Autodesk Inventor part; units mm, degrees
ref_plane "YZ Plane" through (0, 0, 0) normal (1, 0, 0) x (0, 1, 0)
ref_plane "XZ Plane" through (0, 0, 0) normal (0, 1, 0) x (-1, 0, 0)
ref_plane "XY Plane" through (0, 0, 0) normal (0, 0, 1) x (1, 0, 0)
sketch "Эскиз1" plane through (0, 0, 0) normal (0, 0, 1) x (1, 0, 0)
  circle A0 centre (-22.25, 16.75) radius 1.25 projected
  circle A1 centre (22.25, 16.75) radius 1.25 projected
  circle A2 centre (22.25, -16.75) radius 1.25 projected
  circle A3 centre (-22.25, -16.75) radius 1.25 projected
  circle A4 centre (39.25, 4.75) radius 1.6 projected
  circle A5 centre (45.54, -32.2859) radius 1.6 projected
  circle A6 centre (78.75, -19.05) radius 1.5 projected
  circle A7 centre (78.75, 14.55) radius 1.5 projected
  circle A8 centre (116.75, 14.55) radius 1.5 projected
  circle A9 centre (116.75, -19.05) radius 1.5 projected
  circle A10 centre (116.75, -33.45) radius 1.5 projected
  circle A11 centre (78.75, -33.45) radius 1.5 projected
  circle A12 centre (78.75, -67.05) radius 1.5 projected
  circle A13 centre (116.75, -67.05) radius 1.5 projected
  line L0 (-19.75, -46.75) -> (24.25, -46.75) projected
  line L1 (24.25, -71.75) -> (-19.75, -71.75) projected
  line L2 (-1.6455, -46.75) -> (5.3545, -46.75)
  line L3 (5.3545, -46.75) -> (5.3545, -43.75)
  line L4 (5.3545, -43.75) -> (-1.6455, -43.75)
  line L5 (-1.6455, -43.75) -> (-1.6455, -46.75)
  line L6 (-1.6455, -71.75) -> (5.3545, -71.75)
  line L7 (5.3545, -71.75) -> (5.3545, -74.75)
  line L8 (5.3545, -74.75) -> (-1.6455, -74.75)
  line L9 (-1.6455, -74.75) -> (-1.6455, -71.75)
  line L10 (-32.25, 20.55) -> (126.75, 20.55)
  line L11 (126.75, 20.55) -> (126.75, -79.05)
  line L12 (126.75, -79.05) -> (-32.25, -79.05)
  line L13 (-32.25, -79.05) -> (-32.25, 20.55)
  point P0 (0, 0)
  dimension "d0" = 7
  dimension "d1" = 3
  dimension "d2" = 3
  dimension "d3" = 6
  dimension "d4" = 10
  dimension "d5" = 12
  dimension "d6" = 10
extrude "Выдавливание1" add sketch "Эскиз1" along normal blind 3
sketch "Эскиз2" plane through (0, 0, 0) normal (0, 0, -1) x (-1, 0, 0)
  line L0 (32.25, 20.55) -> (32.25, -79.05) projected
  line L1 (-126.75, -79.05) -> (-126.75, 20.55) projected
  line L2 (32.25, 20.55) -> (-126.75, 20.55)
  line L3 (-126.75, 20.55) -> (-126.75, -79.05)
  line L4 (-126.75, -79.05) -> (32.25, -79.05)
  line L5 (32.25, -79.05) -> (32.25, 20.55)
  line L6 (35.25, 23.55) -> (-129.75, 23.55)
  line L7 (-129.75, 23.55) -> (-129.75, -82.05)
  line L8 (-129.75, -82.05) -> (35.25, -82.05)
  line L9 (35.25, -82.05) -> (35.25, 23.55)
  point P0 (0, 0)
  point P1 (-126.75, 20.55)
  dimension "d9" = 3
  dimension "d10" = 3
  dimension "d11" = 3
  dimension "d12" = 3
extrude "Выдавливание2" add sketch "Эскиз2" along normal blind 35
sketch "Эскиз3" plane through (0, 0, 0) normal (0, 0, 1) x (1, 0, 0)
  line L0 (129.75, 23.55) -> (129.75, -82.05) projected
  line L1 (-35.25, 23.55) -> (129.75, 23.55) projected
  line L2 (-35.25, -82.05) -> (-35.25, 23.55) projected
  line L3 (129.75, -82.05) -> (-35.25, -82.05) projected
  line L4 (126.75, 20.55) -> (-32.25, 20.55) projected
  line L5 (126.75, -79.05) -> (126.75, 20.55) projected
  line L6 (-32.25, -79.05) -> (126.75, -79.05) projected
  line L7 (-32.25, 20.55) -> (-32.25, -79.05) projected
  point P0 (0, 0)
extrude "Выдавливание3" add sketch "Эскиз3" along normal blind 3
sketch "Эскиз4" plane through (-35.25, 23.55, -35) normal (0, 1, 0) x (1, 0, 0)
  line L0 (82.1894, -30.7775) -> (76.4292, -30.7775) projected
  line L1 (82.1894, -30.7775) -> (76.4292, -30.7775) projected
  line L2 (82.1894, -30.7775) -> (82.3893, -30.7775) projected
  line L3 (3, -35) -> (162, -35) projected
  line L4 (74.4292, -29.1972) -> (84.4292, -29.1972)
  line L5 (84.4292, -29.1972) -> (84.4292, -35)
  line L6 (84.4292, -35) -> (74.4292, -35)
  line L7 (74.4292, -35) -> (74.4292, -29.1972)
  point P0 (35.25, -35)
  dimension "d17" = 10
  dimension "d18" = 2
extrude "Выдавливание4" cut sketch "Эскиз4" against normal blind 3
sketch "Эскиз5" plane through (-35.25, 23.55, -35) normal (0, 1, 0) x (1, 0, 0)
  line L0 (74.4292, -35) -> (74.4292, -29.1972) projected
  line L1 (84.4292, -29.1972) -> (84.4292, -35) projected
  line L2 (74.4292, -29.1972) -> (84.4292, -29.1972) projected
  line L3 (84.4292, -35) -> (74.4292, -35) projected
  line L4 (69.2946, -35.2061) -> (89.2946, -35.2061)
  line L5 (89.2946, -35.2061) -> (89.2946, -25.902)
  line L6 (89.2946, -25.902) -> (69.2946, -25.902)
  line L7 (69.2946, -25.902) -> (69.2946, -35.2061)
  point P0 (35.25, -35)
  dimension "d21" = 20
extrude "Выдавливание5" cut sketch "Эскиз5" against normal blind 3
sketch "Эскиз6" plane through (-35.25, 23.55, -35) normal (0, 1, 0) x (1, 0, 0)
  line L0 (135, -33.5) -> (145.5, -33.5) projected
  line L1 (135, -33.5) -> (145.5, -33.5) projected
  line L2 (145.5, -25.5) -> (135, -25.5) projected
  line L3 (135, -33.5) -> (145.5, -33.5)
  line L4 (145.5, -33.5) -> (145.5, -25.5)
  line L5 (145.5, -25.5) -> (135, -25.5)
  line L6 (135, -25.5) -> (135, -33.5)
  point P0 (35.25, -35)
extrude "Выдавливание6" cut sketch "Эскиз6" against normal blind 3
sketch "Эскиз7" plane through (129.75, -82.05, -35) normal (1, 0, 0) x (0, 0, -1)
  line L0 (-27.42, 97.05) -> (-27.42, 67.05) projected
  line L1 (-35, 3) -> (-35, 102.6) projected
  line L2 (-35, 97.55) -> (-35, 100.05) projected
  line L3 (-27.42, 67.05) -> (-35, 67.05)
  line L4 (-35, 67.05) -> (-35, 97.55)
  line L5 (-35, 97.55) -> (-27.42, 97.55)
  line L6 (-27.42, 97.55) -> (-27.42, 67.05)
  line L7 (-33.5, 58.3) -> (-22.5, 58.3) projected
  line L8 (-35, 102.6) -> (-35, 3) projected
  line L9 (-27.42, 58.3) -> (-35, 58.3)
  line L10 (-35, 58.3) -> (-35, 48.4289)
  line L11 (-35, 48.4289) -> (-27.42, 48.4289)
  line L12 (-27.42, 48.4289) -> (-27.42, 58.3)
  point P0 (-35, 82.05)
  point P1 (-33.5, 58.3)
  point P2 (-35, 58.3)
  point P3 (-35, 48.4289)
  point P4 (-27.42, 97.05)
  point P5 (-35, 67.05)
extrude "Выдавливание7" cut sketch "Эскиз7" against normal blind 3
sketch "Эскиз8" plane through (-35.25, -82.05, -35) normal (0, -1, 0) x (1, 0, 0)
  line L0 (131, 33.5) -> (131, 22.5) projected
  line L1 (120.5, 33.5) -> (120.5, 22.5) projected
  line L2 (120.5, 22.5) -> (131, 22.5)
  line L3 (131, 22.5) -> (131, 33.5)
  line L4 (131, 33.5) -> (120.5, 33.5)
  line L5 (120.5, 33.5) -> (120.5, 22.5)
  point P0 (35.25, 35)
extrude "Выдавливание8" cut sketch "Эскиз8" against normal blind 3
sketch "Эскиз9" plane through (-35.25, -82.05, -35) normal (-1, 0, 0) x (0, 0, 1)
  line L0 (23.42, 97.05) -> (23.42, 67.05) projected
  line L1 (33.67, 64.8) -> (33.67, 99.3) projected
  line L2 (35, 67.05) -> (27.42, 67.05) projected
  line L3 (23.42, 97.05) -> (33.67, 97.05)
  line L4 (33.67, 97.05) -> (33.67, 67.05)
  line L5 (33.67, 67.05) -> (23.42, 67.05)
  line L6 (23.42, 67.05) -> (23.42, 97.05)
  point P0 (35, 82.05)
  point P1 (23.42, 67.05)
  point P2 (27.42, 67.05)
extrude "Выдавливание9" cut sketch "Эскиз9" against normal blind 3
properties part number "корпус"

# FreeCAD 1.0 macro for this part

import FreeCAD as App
import Part
import Sketcher
from FreeCAD import Vector
Q = App.Units.Quantity


def add_polygon(sketch, points):
    """Adds a closed chain of lines whose ends are joined by coincident constraints."""
    first, n = sketch.GeometryCount, len(points)
    for a, b in zip(points, points[1:] + points[:1]):
        sketch.addGeometry(Part.LineSegment(App.Vector(*a, 0), App.Vector(*b, 0)), False)
    for i in range(n):
        sketch.addConstraint(Sketcher.Constraint("Coincident", first + i, 2, first + (i + 1) % n, 1))

doc = App.newDocument("Part")
body = doc.addObject("PartDesign::Body", "Body")
body.AllowCompound = True

sketch1 = doc.addObject("Sketcher::SketchObject", "Sketch")
body.addObject(sketch1)
sketch1.AttachmentSupport = (doc.XY_Plane, [""])
sketch1.MapMode = "FlatFace"
add_polygon(sketch1, [(126.75, 20.55), (-32.25, 20.55), (-32.25, -79.05), (126.75, -79.05)])
add_polygon(sketch1, [(-1.6455, -71.75), (5.3545, -71.75), (5.3545, -74.75), (-1.6455, -74.75)])
add_polygon(sketch1, [(5.3545, -46.75), (-1.6455, -46.75), (-1.6455, -43.75), (5.3545, -43.75)])
sketch1.addGeometry(Part.Circle(Vector(45.54, -32.2859, 0), Vector(0, 0, 1), 1.6), False)
sketch1.addGeometry(Part.Circle(Vector(78.75, -67.05, 0), Vector(0, 0, 1), 1.5), False)
sketch1.addGeometry(Part.Circle(Vector(116.75, -67.05, 0), Vector(0, 0, 1), 1.5), False)
sketch1.addGeometry(Part.Circle(Vector(78.75, -33.45, 0), Vector(0, 0, 1), 1.5), False)
sketch1.addGeometry(Part.Circle(Vector(116.75, -33.45, 0), Vector(0, 0, 1), 1.5), False)
sketch1.addGeometry(Part.Circle(Vector(-22.25, -16.75, 0), Vector(0, 0, 1), 1.25), False)
sketch1.addGeometry(Part.Circle(Vector(22.25, -16.75, 0), Vector(0, 0, 1), 1.25), False)
sketch1.addGeometry(Part.Circle(Vector(-22.25, 16.75, 0), Vector(0, 0, 1), 1.25), False)
sketch1.addGeometry(Part.Circle(Vector(39.25, 4.75, 0), Vector(0, 0, 1), 1.6), False)
sketch1.addGeometry(Part.Circle(Vector(22.25, 16.75, 0), Vector(0, 0, 1), 1.25), False)
sketch1.addGeometry(Part.Circle(Vector(78.75, -19.05, 0), Vector(0, 0, 1), 1.5), False)
sketch1.addGeometry(Part.Circle(Vector(116.75, -19.05, 0), Vector(0, 0, 1), 1.5), False)
sketch1.addGeometry(Part.Circle(Vector(78.75, 14.55, 0), Vector(0, 0, 1), 1.5), False)
sketch1.addGeometry(Part.Circle(Vector(116.75, 14.55, 0), Vector(0, 0, 1), 1.5), False)
sketch1.addConstraint([
    Sketcher.Constraint("Horizontal", 0),
    Sketcher.Constraint("Vertical", 1),
    Sketcher.Constraint("Horizontal", 2),
    Sketcher.Constraint("Vertical", 3),
    Sketcher.Constraint("Horizontal", 4),
    Sketcher.Constraint("Vertical", 5),
    Sketcher.Constraint("Horizontal", 6),
    Sketcher.Constraint("Vertical", 7),
    Sketcher.Constraint("Horizontal", 8),
    Sketcher.Constraint("Vertical", 9),
    Sketcher.Constraint("Horizontal", 10),
    Sketcher.Constraint("Vertical", 11),
    Sketcher.Constraint("Equal", 13, 14),
    Sketcher.Constraint("Equal", 14, 15),
    Sketcher.Constraint("Equal", 15, 16),
    Sketcher.Constraint("Equal", 17, 18),
    Sketcher.Constraint("Equal", 18, 19),
    Sketcher.Constraint("Equal", 12, 20),
    Sketcher.Constraint("Equal", 19, 21),
    Sketcher.Constraint("Equal", 16, 22),
    Sketcher.Constraint("Equal", 22, 23),
    Sketcher.Constraint("Equal", 23, 24),
    Sketcher.Constraint("Equal", 24, 25),
    Sketcher.Constraint("Symmetric", 18, 3, 19, 3, -1, 1),
    Sketcher.Constraint("Symmetric", 17, 3, 21, 3, -1, 1),
    Sketcher.Constraint("Symmetric", 17, 3, 18, 3, -2),
    Sketcher.Constraint("Horizontal", 13, 3, 14, 3),
    Sketcher.Constraint("Horizontal", 15, 3, 16, 3),
    Sketcher.Constraint("Horizontal", 22, 3, 23, 3),
    Sketcher.Constraint("Horizontal", 24, 3, 25, 3),
    Sketcher.Constraint("Vertical", 13, 3, 15, 3),
    Sketcher.Constraint("Vertical", 14, 3, 16, 3),
    Sketcher.Constraint("Vertical", 15, 3, 22, 3),
    Sketcher.Constraint("Vertical", 16, 3, 23, 3),
    Sketcher.Constraint("Vertical", 22, 3, 24, 3),
    Sketcher.Constraint("Vertical", 23, 3, 25, 3),
    Sketcher.Constraint("Vertical", 7, 2, 8, 2),
    Sketcher.Constraint("Vertical", 5, 2, 10, 2),
    Sketcher.Constraint("Equal", 7, 9),
    Sketcher.Constraint("Diameter", 13, Q("3 mm")),
    Sketcher.Constraint("DistanceX", 4, 1, 4, 2, Q("7 mm")),
    Sketcher.Constraint("DistanceY", 5, 2, 5, 1, Q("3 mm")),
    Sketcher.Constraint("DistanceY", 20, 3, 19, 3, Q("12 mm")),
    Sketcher.Constraint("DistanceX", 0, 2, 19, 3, Q("10 mm")),
    Sketcher.Constraint("DistanceX", 14, 3, 2, 2, Q("10 mm")),
    Sketcher.Constraint("DistanceY", 2, 2, 14, 3, Q("12 mm")),
    Sketcher.Constraint("DistanceY", 25, 3, 3, 2, Q("6 mm")),
    Sketcher.Constraint("Diameter", 12, Q("3.2 mm")),
    Sketcher.Constraint("Diameter", 17, Q("2.5 mm")),
    Sketcher.Constraint("DistanceX", 0, 2, 0, 1, Q("159 mm")),
    Sketcher.Constraint("DistanceY", 1, 2, 1, 1, Q("99.6 mm")),
    Sketcher.Constraint("DistanceX", 13, 3, 14, 3, Q("38 mm")),
    Sketcher.Constraint("DistanceX", 18, 3, 20, 3, Q("17 mm")),
    Sketcher.Constraint("DistanceY", 13, 3, 22, 3, Q("48 mm")),
    Sketcher.Constraint("DistanceY", 15, 3, 24, 3, Q("48 mm")),
    Sketcher.Constraint("DistanceY", 4, 2, 18, 3, Q("55 mm")),
    Sketcher.Constraint("DistanceY", 7, 2, 8, 2, Q("25 mm")),
    Sketcher.Constraint("DistanceY", 15, 3, 17, 3, Q("16.7 mm")),
    Sketcher.Constraint("DistanceX", 17, 3, 18, 3, Q("44.5 mm")),
    Sketcher.Constraint("DistanceY", 17, 3, 19, 3, Q("33.5 mm")),
    Sketcher.Constraint("DistanceX", -1, 1, 12, 3, Q("45.54 mm")),
    Sketcher.Constraint("DistanceY", 12, 3, -1, 1, Q("32.286 mm")),
    Sketcher.Constraint("DistanceX", -1, 1, 4, 2, Q("5.3545 mm")),
])
pad1 = doc.addObject("PartDesign::Pad", "Pad")
body.addObject(pad1)
pad1.Profile = sketch1
pad1.Length = 3

sketch2 = doc.addObject("Sketcher::SketchObject", "Sketch001")
body.addObject(sketch2)
sketch2.AttachmentSupport = (doc.XY_Plane, [""])
sketch2.MapMode = "FlatFace"
add_polygon(sketch2, [(-35.25, -82.05), (-35.25, 23.55), (129.75, 23.55), (129.75, -82.05)])
add_polygon(sketch2, [(126.75, 20.55), (-32.25, 20.55), (-32.25, -79.05), (126.75, -79.05)])
sketch2.addConstraint([
    Sketcher.Constraint("Vertical", 0),
    Sketcher.Constraint("Horizontal", 1),
    Sketcher.Constraint("Vertical", 2),
    Sketcher.Constraint("Horizontal", 3),
    Sketcher.Constraint("Horizontal", 4),
    Sketcher.Constraint("Vertical", 5),
    Sketcher.Constraint("Horizontal", 6),
    Sketcher.Constraint("Vertical", 7),
    Sketcher.Constraint("DistanceX", 0, 2, 4, 2, Q("3 mm")),
    Sketcher.Constraint("DistanceY", 4, 2, 0, 2, Q("3 mm")),
    Sketcher.Constraint("DistanceY", 3, 2, 5, 2, Q("3 mm")),
    Sketcher.Constraint("DistanceX", 6, 2, 2, 2, Q("3 mm")),
    Sketcher.Constraint("DistanceX", 1, 1, 1, 2, Q("165 mm")),
    Sketcher.Constraint("DistanceY", 0, 1, 0, 2, Q("105.6 mm")),
    Sketcher.Constraint("DistanceX", 0, 2, -1, 1, Q("35.25 mm")),
    Sketcher.Constraint("DistanceY", -1, 1, 0, 2, Q("23.55 mm")),
])
pad2 = doc.addObject("PartDesign::Pad", "Pad001")
body.addObject(pad2)
pad2.Profile = sketch2
pad2.Length = 35
pad2.Reversed = True

sketch3 = doc.addObject("Sketcher::SketchObject", "Sketch002")
body.addObject(sketch3)
sketch3.AttachmentSupport = (doc.XY_Plane, [""])
sketch3.MapMode = "FlatFace"
add_polygon(sketch3, [(129.75, -82.05), (129.75, 23.55), (-35.25, 23.55), (-35.25, -82.05)])
add_polygon(sketch3, [(-32.25, 20.55), (126.75, 20.55), (126.75, -79.05), (-32.25, -79.05)])
sketch3.addConstraint([
    Sketcher.Constraint("Vertical", 0),
    Sketcher.Constraint("Horizontal", 1),
    Sketcher.Constraint("Vertical", 2),
    Sketcher.Constraint("Horizontal", 3),
    Sketcher.Constraint("Horizontal", 4),
    Sketcher.Constraint("Vertical", 5),
    Sketcher.Constraint("Horizontal", 6),
    Sketcher.Constraint("Vertical", 7),
    Sketcher.Constraint("DistanceX", 1, 2, 1, 1, Q("165 mm")),
    Sketcher.Constraint("DistanceX", 4, 1, 4, 2, Q("159 mm")),
    Sketcher.Constraint("DistanceY", 0, 1, 0, 2, Q("105.6 mm")),
    Sketcher.Constraint("DistanceY", 5, 2, 5, 1, Q("99.6 mm")),
    Sketcher.Constraint("DistanceX", 4, 2, 0, 2, Q("3 mm")),
    Sketcher.Constraint("DistanceY", 4, 2, 0, 2, Q("3 mm")),
    Sketcher.Constraint("DistanceX", -1, 1, 0, 2, Q("129.75 mm")),
    Sketcher.Constraint("DistanceY", -1, 1, 0, 2, Q("23.55 mm")),
])
pad3 = doc.addObject("PartDesign::Pad", "Pad002")
body.addObject(pad3)
pad3.Profile = sketch3
pad3.Length = 3

sketch4 = doc.addObject("Sketcher::SketchObject", "Sketch003")
body.addObject(sketch4)
sketch4.AttachmentSupport = (doc.XZ_Plane, [""])
sketch4.MapMode = "FlatFace"
sketch4.AttachmentOffset = App.Placement(Vector(0, 0, -23.55), App.Rotation())
add_polygon(sketch4, [(39.1792, -5.8028), (39.1792, 0), (49.1792, 0), (49.1792, -5.8028)])
sketch4.addConstraint([
    Sketcher.Constraint("Vertical", 0),
    Sketcher.Constraint("Horizontal", 1),
    Sketcher.Constraint("Vertical", 2),
    Sketcher.Constraint("Horizontal", 3),
    Sketcher.Constraint("PointOnObject", 0, 2, -1),
    Sketcher.Constraint("DistanceX", 1, 1, 1, 2, Q("10 mm")),
    Sketcher.Constraint("DistanceY", 0, 1, 0, 2, Q("5.8028 mm")),
    Sketcher.Constraint("DistanceX", -1, 1, 0, 2, Q("39.1792 mm")),
])
pocket1 = doc.addObject("PartDesign::Pocket", "Pocket")
body.addObject(pocket1)
pocket1.Profile = sketch4
pocket1.Length = 3
pocket1.Reversed = True

sketch5 = doc.addObject("Sketcher::SketchObject", "Sketch004")
body.addObject(sketch5)
sketch5.AttachmentSupport = (doc.XZ_Plane, [""])
sketch5.MapMode = "FlatFace"
sketch5.AttachmentOffset = App.Placement(Vector(0, 0, -23.55), App.Rotation())
add_polygon(sketch5, [(34.0446, -9.098), (34.0446, 0.2061), (54.0446, 0.2061), (54.0446, -9.098)])
add_polygon(sketch5, [(49.1792, 0), (39.1792, 0), (39.1792, -5.8028), (49.1792, -5.8028)])
sketch5.addConstraint([
    Sketcher.Constraint("Vertical", 0),
    Sketcher.Constraint("Horizontal", 1),
    Sketcher.Constraint("Vertical", 2),
    Sketcher.Constraint("Horizontal", 3),
    Sketcher.Constraint("Horizontal", 4),
    Sketcher.Constraint("Vertical", 5),
    Sketcher.Constraint("Horizontal", 6),
    Sketcher.Constraint("Vertical", 7),
    Sketcher.Constraint("PointOnObject", 4, 2, -1),
    Sketcher.Constraint("DistanceX", 1, 1, 1, 2, Q("20 mm")),
    Sketcher.Constraint("DistanceX", 4, 2, 4, 1, Q("10 mm")),
    Sketcher.Constraint("DistanceY", 0, 1, 0, 2, Q("9.304 mm")),
    Sketcher.Constraint("DistanceY", 5, 2, 5, 1, Q("5.8028 mm")),
    Sketcher.Constraint("DistanceY", -1, 1, 0, 2, Q("0.206 mm")),
    Sketcher.Constraint("DistanceX", -1, 1, 0, 2, Q("34.0446 mm")),
    Sketcher.Constraint("DistanceX", -1, 1, 4, 2, Q("39.1792 mm")),
])
pocket2 = doc.addObject("PartDesign::Pocket", "Pocket001")
body.addObject(pocket2)
pocket2.Profile = sketch5
pocket2.Length = 3
pocket2.Reversed = True

sketch6 = doc.addObject("Sketcher::SketchObject", "Sketch005")
body.addObject(sketch6)
sketch6.AttachmentSupport = (doc.XZ_Plane, [""])
sketch6.MapMode = "FlatFace"
sketch6.AttachmentOffset = App.Placement(Vector(0, 0, -23.55), App.Rotation())
add_polygon(sketch6, [(99.75, -9.5), (99.75, -1.5), (110.25, -1.5), (110.25, -9.5)])
sketch6.addConstraint([
    Sketcher.Constraint("Vertical", 0),
    Sketcher.Constraint("Horizontal", 1),
    Sketcher.Constraint("Vertical", 2),
    Sketcher.Constraint("Horizontal", 3),
    Sketcher.Constraint("DistanceY", 0, 1, 0, 2, Q("8 mm")),
    Sketcher.Constraint("DistanceX", 1, 1, 1, 2, Q("10.5 mm")),
    Sketcher.Constraint("DistanceY", 0, 2, -1, 1, Q("1.5 mm")),
    Sketcher.Constraint("DistanceX", -1, 1, 0, 2, Q("99.75 mm")),
])
pocket3 = doc.addObject("PartDesign::Pocket", "Pocket002")
body.addObject(pocket3)
pocket3.Profile = sketch6
pocket3.Length = 3
pocket3.Reversed = True

sketch7 = doc.addObject("Sketcher::SketchObject", "Sketch006")
body.addObject(sketch7)
sketch7.AttachmentSupport = (doc.YZ_Plane, [""])
sketch7.MapMode = "FlatFace"
sketch7.AttachmentOffset = App.Placement(Vector(0, 0, 129.75), App.Rotation())
add_polygon(sketch7, [(-23.75, -7.58), (-23.75, 0), (-33.6211, 0), (-33.6211, -7.58)])
add_polygon(sketch7, [(-15, -7.58), (15.5, -7.58), (15.5, 0), (-15, 0)])
sketch7.addConstraint([
    Sketcher.Constraint("Vertical", 0),
    Sketcher.Constraint("Horizontal", 1),
    Sketcher.Constraint("Vertical", 2),
    Sketcher.Constraint("Horizontal", 3),
    Sketcher.Constraint("Horizontal", 4),
    Sketcher.Constraint("Vertical", 5),
    Sketcher.Constraint("Horizontal", 6),
    Sketcher.Constraint("Vertical", 7),
    Sketcher.Constraint("PointOnObject", 0, 2, -1),
    Sketcher.Constraint("PointOnObject", 5, 2, -1),
    Sketcher.Constraint("Horizontal", 3, 2, 4, 2),
    Sketcher.Constraint("DistanceX", 4, 1, 4, 2, Q("30.5 mm")),
    Sketcher.Constraint("DistanceX", 6, 2, -1, 1, Q("15 mm")),
    Sketcher.Constraint("DistanceY", 0, 1, 0, 2, Q("7.58 mm")),
    Sketcher.Constraint("DistanceX", 1, 2, 1, 1, Q("9.871 mm")),
    Sketcher.Constraint("DistanceX", 0, 2, -1, 1, Q("23.75 mm")),
])
pocket4 = doc.addObject("PartDesign::Pocket", "Pocket003")
body.addObject(pocket4)
pocket4.Profile = sketch7
pocket4.Length = 3

sketch8 = doc.addObject("Sketcher::SketchObject", "Sketch007")
body.addObject(sketch8)
sketch8.AttachmentSupport = (doc.XZ_Plane, [""])
sketch8.MapMode = "FlatFace"
sketch8.AttachmentOffset = App.Placement(Vector(0, 0, 82.05), App.Rotation())
add_polygon(sketch8, [(95.75, -12.5), (95.75, -1.5), (85.25, -1.5), (85.25, -12.5)])
sketch8.addConstraint([
    Sketcher.Constraint("Vertical", 0),
    Sketcher.Constraint("Horizontal", 1),
    Sketcher.Constraint("Vertical", 2),
    Sketcher.Constraint("Horizontal", 3),
    Sketcher.Constraint("DistanceY", 0, 1, 0, 2, Q("11 mm")),
    Sketcher.Constraint("DistanceX", 1, 2, 1, 1, Q("10.5 mm")),
    Sketcher.Constraint("DistanceY", 0, 2, -1, 1, Q("1.5 mm")),
    Sketcher.Constraint("DistanceX", -1, 1, 0, 2, Q("95.75 mm")),
])
pocket5 = doc.addObject("PartDesign::Pocket", "Pocket004")
body.addObject(pocket5)
pocket5.Profile = sketch8
pocket5.Length = 3

sketch9 = doc.addObject("Sketcher::SketchObject", "Sketch008")
body.addObject(sketch9)
sketch9.AttachmentSupport = (doc.YZ_Plane, [""])
sketch9.MapMode = "FlatFace"
sketch9.AttachmentOffset = App.Placement(Vector(0, 0, -35.25), App.Rotation())
add_polygon(sketch9, [(15, -1.33), (15, -11.58), (-15, -11.58), (-15, -1.33)])
sketch9.addConstraint([
    Sketcher.Constraint("Vertical", 0),
    Sketcher.Constraint("Horizontal", 1),
    Sketcher.Constraint("Vertical", 2),
    Sketcher.Constraint("Horizontal", 3),
    Sketcher.Constraint("DistanceX", 1, 2, 1, 1, Q("30 mm")),
    Sketcher.Constraint("DistanceX", -1, 1, 0, 2, Q("15 mm")),
    Sketcher.Constraint("DistanceY", 0, 2, 0, 1, Q("10.25 mm")),
    Sketcher.Constraint("DistanceY", 0, 2, -1, 1, Q("11.58 mm")),
])
pocket6 = doc.addObject("PartDesign::Pocket", "Pocket005")
body.addObject(pocket6)
pocket6.Profile = sketch9
pocket6.Length = 3
pocket6.Reversed = True

doc.recompute()
